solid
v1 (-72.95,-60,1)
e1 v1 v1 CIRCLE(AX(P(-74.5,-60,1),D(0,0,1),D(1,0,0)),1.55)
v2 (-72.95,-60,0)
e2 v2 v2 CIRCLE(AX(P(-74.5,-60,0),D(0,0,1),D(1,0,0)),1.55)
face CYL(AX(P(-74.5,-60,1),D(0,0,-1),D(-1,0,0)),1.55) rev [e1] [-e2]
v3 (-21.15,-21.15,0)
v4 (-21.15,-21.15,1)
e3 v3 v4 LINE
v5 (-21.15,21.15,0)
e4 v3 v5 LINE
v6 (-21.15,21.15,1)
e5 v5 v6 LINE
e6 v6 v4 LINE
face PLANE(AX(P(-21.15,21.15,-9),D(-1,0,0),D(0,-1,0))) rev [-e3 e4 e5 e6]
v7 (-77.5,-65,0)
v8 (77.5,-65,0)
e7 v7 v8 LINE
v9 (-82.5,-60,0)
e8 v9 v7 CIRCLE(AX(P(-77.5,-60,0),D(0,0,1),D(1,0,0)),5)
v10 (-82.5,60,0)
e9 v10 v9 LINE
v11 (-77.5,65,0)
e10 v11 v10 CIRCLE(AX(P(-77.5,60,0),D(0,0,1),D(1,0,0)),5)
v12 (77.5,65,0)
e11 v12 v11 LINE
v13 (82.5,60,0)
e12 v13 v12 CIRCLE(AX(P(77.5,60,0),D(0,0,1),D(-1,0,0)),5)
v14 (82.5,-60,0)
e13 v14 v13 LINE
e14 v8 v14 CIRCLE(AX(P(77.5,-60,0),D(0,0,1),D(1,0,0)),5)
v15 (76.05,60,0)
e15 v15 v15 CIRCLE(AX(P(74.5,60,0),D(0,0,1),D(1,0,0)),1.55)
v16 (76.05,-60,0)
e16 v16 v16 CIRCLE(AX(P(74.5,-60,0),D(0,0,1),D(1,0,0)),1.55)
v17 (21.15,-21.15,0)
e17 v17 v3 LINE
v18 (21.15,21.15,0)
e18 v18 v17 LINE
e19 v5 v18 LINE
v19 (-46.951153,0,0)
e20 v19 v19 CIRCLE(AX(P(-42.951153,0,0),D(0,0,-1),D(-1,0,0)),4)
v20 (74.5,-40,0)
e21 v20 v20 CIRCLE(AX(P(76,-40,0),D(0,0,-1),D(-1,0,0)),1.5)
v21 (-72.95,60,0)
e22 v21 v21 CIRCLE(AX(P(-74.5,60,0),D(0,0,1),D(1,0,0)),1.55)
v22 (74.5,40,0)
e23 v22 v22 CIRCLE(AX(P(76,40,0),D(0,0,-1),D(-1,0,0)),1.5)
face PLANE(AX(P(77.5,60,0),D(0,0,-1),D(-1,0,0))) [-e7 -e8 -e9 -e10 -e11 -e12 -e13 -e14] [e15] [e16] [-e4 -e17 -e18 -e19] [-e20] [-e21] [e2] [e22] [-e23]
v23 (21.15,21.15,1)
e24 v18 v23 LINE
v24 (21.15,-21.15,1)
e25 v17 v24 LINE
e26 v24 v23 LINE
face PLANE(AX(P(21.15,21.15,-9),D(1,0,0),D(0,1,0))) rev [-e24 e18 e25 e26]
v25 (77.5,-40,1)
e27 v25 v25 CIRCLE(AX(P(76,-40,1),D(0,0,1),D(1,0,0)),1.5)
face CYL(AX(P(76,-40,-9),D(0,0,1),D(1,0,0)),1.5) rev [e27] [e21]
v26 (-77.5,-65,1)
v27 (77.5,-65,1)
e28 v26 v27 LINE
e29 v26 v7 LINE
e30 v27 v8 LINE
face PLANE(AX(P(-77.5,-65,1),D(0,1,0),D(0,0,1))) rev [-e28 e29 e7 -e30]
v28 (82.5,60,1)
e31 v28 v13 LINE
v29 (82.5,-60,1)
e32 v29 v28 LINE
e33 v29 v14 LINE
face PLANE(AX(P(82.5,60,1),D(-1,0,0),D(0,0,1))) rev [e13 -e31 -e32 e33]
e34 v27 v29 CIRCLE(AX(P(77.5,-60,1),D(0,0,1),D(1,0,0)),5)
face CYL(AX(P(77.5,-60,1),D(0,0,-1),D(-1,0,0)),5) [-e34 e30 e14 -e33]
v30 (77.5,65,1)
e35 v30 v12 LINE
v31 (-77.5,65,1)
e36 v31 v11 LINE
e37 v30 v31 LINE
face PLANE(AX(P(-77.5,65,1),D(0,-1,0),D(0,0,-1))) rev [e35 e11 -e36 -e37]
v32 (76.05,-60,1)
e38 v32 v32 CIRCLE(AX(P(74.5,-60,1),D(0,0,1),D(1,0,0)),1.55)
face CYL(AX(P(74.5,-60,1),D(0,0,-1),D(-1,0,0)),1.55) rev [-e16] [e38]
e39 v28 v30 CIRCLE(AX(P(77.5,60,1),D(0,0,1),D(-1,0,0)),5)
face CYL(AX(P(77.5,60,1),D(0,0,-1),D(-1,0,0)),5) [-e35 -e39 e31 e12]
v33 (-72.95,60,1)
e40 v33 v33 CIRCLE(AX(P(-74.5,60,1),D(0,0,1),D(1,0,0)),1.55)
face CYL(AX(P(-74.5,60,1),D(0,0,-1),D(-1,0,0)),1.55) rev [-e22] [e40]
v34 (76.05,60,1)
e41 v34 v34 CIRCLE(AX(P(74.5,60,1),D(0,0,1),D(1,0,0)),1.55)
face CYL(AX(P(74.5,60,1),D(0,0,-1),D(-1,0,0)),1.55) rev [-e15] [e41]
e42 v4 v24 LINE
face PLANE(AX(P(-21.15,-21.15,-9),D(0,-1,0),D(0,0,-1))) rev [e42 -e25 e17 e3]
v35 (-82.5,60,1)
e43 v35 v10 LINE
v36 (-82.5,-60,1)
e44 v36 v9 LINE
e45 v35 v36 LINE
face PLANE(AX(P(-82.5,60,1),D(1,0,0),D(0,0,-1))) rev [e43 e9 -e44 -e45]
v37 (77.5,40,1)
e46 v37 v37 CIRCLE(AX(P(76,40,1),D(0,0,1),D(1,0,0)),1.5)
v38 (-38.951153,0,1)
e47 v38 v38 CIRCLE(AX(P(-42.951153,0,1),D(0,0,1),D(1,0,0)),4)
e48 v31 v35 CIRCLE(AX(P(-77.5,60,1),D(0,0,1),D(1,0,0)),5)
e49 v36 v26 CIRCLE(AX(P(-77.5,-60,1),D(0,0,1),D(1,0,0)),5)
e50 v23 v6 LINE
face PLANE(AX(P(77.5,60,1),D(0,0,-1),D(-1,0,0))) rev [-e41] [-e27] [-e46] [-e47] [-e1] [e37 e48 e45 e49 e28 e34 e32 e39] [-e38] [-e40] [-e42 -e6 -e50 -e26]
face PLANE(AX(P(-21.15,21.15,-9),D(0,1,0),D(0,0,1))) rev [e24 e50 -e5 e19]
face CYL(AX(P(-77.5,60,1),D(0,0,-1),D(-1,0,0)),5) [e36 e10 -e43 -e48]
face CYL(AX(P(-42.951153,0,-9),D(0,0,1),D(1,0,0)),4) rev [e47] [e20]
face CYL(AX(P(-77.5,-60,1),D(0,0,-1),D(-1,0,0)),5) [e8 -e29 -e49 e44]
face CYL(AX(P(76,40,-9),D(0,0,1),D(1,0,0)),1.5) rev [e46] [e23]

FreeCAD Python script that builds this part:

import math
import FreeCAD as App
import Part
import Sketcher

V = App.Vector
Q = App.Units.Quantity

doc = App.newDocument("Part")
params = doc.addObject("Spreadsheet::Sheet", "Params")
for row, (alias, value) in enumerate([
    ("sketch1_radius", "5 mm"),
    ("sketch1_diameter", "3.1 mm"),
    ("sketch1_width", "155 mm"),
    ("sketch1_height", "120 mm"),
    ("pad1_length", "1 mm"),
    ("sketch2_diameter", "3 mm"),
    ("pocket1_length", "10 mm"),
    ("sketch3_diameter", "8 mm"),
    ("pocket2_length", "10 mm"),
    ("sketch4_width", "42.3 mm"),
    ("pocket3_length", "10 mm"),
], start=1):
    params.set(f"A{row}", alias)
    params.set(f"B{row}", "=" + value)
    params.setAlias(f"B{row}", alias)

body = doc.addObject("PartDesign::Body", "Body")

# Sketch on XY plane
sketch1 = body.newObject("Sketcher::SketchObject", "Sketch")
sketch1.AttachmentSupport = (doc.getObject("XY_Plane"), [""])
sketch1.MapMode = "FlatFace"
sketch1.addGeometry(Part.LineSegment(V(77.5, 65, 0), V(-77.5, 65, 0)), False)
sketch1.addGeometry(Part.ArcOfCircle(Part.Circle(V(-77.5, 60, 0), V(0, 0, 1), 5), math.radians(90), math.radians(180)), False)
sketch1.addGeometry(Part.LineSegment(V(-82.5, 60, 0), V(-82.5, -60, 0)), False)
sketch1.addGeometry(Part.ArcOfCircle(Part.Circle(V(-77.5, -60, 0), V(0, 0, 1), 5), math.radians(180), math.radians(270)), False)
sketch1.addGeometry(Part.LineSegment(V(-77.5, -65, 0), V(77.5, -65, 0)), False)
sketch1.addGeometry(Part.ArcOfCircle(Part.Circle(V(77.5, -60, 0), V(0, 0, 1), 5), math.radians(-90), math.radians(0)), False)
sketch1.addGeometry(Part.LineSegment(V(82.5, -60, 0), V(82.5, 60, 0)), False)
sketch1.addGeometry(Part.ArcOfCircle(Part.Circle(V(77.5, 60, 0), V(0, 0, 1), 5), math.radians(0), math.radians(90)), False)
sketch1.addGeometry(Part.Circle(V(74.5, -60, 0), V(0, 0, 1), 1.55), False)
sketch1.addGeometry(Part.Circle(V(-74.5, -60, 0), V(0, 0, 1), 1.55), False)
sketch1.addGeometry(Part.Circle(V(74.5, 60, 0), V(0, 0, 1), 1.55), False)
sketch1.addGeometry(Part.Circle(V(-74.5, 60, 0), V(0, 0, 1), 1.55), False)
sketch1.addConstraint(Sketcher.Constraint("Tangent", 0, 2, 1, 1))
sketch1.addConstraint(Sketcher.Constraint("Tangent", 1, 2, 2, 1))
sketch1.addConstraint(Sketcher.Constraint("Tangent", 2, 2, 3, 1))
sketch1.addConstraint(Sketcher.Constraint("Tangent", 3, 2, 4, 1))
sketch1.addConstraint(Sketcher.Constraint("Tangent", 4, 2, 5, 1))
sketch1.addConstraint(Sketcher.Constraint("Tangent", 5, 2, 6, 1))
sketch1.addConstraint(Sketcher.Constraint("Tangent", 6, 2, 7, 1))
sketch1.addConstraint(Sketcher.Constraint("Tangent", 7, 2, 0, 1))
sketch1.addConstraint(Sketcher.Constraint("Horizontal", 0))
sketch1.addConstraint(Sketcher.Constraint("Vertical", 2))
sketch1.addConstraint(Sketcher.Constraint("Horizontal", 4))
sketch1.addConstraint(Sketcher.Constraint("Vertical", 6))
sketch1.addConstraint(Sketcher.Constraint("Equal", 1, 3))
sketch1.addConstraint(Sketcher.Constraint("Equal", 3, 5))
sketch1.addConstraint(Sketcher.Constraint("Equal", 5, 7))
sketch1.addConstraint(Sketcher.Constraint("Equal", 8, 9))
sketch1.addConstraint(Sketcher.Constraint("Equal", 9, 10))
sketch1.addConstraint(Sketcher.Constraint("Equal", 10, 11))
sketch1.addConstraint(Sketcher.Constraint("Symmetric", 1, 3, 5, 3, -1, 1))
sketch1.addConstraint(Sketcher.Constraint("Symmetric", 9, 3, 10, 3, -1, 1))
sketch1.addConstraint(Sketcher.Constraint("Symmetric", 8, 3, 11, 3, -1, 1))
sketch1.addConstraint(Sketcher.Constraint("Symmetric", 8, 3, 9, 3, -2))
sketch1.addConstraint(Sketcher.Constraint("Horizontal", 5, 3, 8, 3))
sketch1.addConstraint(Sketcher.Constraint("Radius", 1, Q("5 mm")))
sketch1.addConstraint(Sketcher.Constraint("Diameter", 8, Q("3.1 mm")))
sketch1.addConstraint(Sketcher.Constraint("DistanceX", 0, 2, 0, 1, Q("155 mm")))
sketch1.addConstraint(Sketcher.Constraint("DistanceY", 2, 2, 2, 1, Q("120 mm")))
sketch1.addConstraint(Sketcher.Constraint("DistanceX", 8, 3, 5, 3, Q("3 mm")))
sketch1.setExpression("Constraints[23]", "Params.sketch1_radius")
sketch1.setExpression("Constraints[24]", "Params.sketch1_diameter")
sketch1.setExpression("Constraints[25]", "Params.sketch1_width")
sketch1.setExpression("Constraints[26]", "Params.sketch1_height")
pad1 = body.newObject("PartDesign::Pad", "Pad")
pad1.Profile = sketch1
pad1.setExpression("Length", "Params.pad1_length")

# Sketch on XY plane
sketch2 = body.newObject("Sketcher::SketchObject", "Sketch001")
sketch2.AttachmentSupport = (doc.getObject("XY_Plane"), [""])
sketch2.MapMode = "FlatFace"
sketch2.AttachmentOffset = App.Placement(V(0, 0, 1), App.Rotation())
sketch2.addGeometry(Part.Circle(V(76, 40, 0), V(0, 0, 1), 1.5), False)
sketch2.addGeometry(Part.Circle(V(76, -40, 0), V(0, 0, 1), 1.5), False)
sketch2.addConstraint(Sketcher.Constraint("Equal", 0, 1))
sketch2.addConstraint(Sketcher.Constraint("Symmetric", 0, 3, 1, 3, -1))
sketch2.addConstraint(Sketcher.Constraint("Diameter", 0, Q("3 mm")))
sketch2.addConstraint(Sketcher.Constraint("DistanceX", -1, 1, 0, 3, Q("76 mm")))
sketch2.addConstraint(Sketcher.Constraint("DistanceY", -1, 1, 0, 3, Q("40 mm")))
sketch2.setExpression("Constraints[2]", "Params.sketch2_diameter")
pocket1 = body.newObject("PartDesign::Pocket", "Pocket")
pocket1.Profile = sketch2
pocket1.setExpression("Length", "Params.pocket1_length")

# Sketch on XY plane
sketch3 = body.newObject("Sketcher::SketchObject", "Sketch002")
sketch3.AttachmentSupport = (doc.getObject("XY_Plane"), [""])
sketch3.MapMode = "FlatFace"
sketch3.AttachmentOffset = App.Placement(V(0, 0, 1), App.Rotation())
sketch3.addGeometry(Part.Circle(V(-42.951153, 0, 0), V(0, 0, 1), 4), False)
sketch3.addConstraint(Sketcher.Constraint("PointOnObject", 0, 3, -1))
sketch3.addConstraint(Sketcher.Constraint("Diameter", 0, Q("8 mm")))
sketch3.addConstraint(Sketcher.Constraint("DistanceX", 0, 3, -1, 1, Q("42.951153 mm")))
sketch3.setExpression("Constraints[1]", "Params.sketch3_diameter")
pocket2 = body.newObject("PartDesign::Pocket", "Pocket001")
pocket2.Profile = sketch3
pocket2.setExpression("Length", "Params.pocket2_length")

# Sketch on XY plane
sketch4 = body.newObject("Sketcher::SketchObject", "Sketch003")
sketch4.AttachmentSupport = (doc.getObject("XY_Plane"), [""])
sketch4.MapMode = "FlatFace"
sketch4.AttachmentOffset = App.Placement(V(0, 0, 1), App.Rotation())
sketch4.addGeometry(Part.LineSegment(V(-21.15, 21.15, 0), V(-21.15, -21.15, 0)), False)
sketch4.addGeometry(Part.LineSegment(V(-21.15, -21.15, 0), V(21.15, -21.15, 0)), False)
sketch4.addGeometry(Part.LineSegment(V(21.15, -21.15, 0), V(21.15, 21.15, 0)), False)
sketch4.addGeometry(Part.LineSegment(V(21.15, 21.15, 0), V(-21.15, 21.15, 0)), False)
sketch4.addConstraint(Sketcher.Constraint("Coincident", 0, 2, 1, 1))
sketch4.addConstraint(Sketcher.Constraint("Coincident", 1, 2, 2, 1))
sketch4.addConstraint(Sketcher.Constraint("Coincident", 2, 2, 3, 1))
sketch4.addConstraint(Sketcher.Constraint("Coincident", 3, 2, 0, 1))
sketch4.addConstraint(Sketcher.Constraint("Vertical", 0))
sketch4.addConstraint(Sketcher.Constraint("Horizontal", 1))
sketch4.addConstraint(Sketcher.Constraint("Vertical", 2))
sketch4.addConstraint(Sketcher.Constraint("Horizontal", 3))
sketch4.addConstraint(Sketcher.Constraint("Symmetric", 0, 2, 2, 2, -1, 1))
sketch4.addConstraint(Sketcher.Constraint("Equal", 3, 0))
sketch4.addConstraint(Sketcher.Constraint("DistanceX", 1, 1, 1, 2, Q("42.3 mm")))
sketch4.setExpression("Constraints[10]", "Params.sketch4_width")
pocket3 = body.newObject("PartDesign::Pocket", "Pocket002")
pocket3.Profile = sketch4
pocket3.setExpression("Length", "Params.pocket3_length")

doc.recompute()
